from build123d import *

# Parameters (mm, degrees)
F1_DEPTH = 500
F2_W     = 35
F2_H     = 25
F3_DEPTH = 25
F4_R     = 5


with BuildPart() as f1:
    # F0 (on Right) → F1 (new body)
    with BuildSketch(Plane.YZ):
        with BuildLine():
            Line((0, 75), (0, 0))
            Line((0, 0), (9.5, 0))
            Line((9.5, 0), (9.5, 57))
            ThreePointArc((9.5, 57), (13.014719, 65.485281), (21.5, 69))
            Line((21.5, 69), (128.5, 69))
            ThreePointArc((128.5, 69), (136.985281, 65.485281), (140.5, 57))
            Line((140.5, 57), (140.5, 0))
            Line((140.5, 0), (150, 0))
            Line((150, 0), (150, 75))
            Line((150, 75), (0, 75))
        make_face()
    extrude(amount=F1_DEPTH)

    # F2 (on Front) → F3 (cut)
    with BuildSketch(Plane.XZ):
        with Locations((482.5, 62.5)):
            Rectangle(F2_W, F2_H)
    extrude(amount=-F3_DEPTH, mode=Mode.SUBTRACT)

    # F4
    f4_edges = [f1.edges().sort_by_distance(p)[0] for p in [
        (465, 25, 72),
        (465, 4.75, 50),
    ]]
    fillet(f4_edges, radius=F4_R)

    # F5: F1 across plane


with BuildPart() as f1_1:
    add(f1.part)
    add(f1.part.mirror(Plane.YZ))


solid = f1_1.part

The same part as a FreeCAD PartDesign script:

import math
import FreeCAD as App
import Part
import Sketcher
Q = App.Units.Quantity


def edges_at(feature, points):
    """Names of the edges that pass closest to the given points."""
    edges = feature.Shape.Edges
    near = lambda p: min(range(len(edges)), key=lambda i: edges[i].distToShape(Part.Vertex(*p))[0])
    return sorted({f"Edge{near(p) + 1}" for p in points})


def add_polygon(sketch, points):
    """Adds a closed chain of lines whose ends are joined by coincident constraints."""
    first, n = sketch.GeometryCount, len(points)
    for a, b in zip(points, points[1:] + points[:1]):
        sketch.addGeometry(Part.LineSegment(App.Vector(*a, 0), App.Vector(*b, 0)), False)
    for i in range(n):
        sketch.addConstraint(Sketcher.Constraint("Coincident", first + i, 2, first + (i + 1) % n, 1))

doc = App.newDocument("Part")
body = doc.addObject("PartDesign::Body", "Body")

sketch1 = body.newObject("Sketcher::SketchObject", "Sketch")
sketch1.AttachmentSupport = (doc.getObject("YZ_Plane"), [""])
sketch1.MapMode = "FlatFace"
sketch1.addGeometry([
    Part.LineSegment(App.Vector(0, 75, 0), App.Vector(0, 0, 0)),
    Part.LineSegment(App.Vector(0, 0, 0), App.Vector(10, 0, 0)),
    Part.LineSegment(App.Vector(10, 0, 0), App.Vector(10, 57, 0)),
    Part.ArcOfCircle(Part.Circle(App.Vector(22, 57, 0), App.Vector(0, 0, 1), 12), math.radians(90), math.radians(180)),
    Part.LineSegment(App.Vector(22, 69, 0), App.Vector(128, 69, 0)),
    Part.ArcOfCircle(Part.Circle(App.Vector(128, 57, 0), App.Vector(0, 0, 1), 12), math.radians(0), math.radians(90)),
    Part.LineSegment(App.Vector(140, 57, 0), App.Vector(140, 0, 0)),
    Part.LineSegment(App.Vector(140, 0, 0), App.Vector(150, 0, 0)),
    Part.LineSegment(App.Vector(150, 0, 0), App.Vector(150, 75, 0)),
    Part.LineSegment(App.Vector(150, 75, 0), App.Vector(0, 75, 0)),
], False)
sketch1.addConstraint([
    Sketcher.Constraint("Coincident", 0, 2, 1, 1),
    Sketcher.Constraint("Coincident", 1, 2, 2, 1),
    Sketcher.Constraint("Tangent", 2, 2, 3, 2),
    Sketcher.Constraint("Tangent", 3, 1, 4, 1),
    Sketcher.Constraint("Tangent", 4, 2, 5, 2),
    Sketcher.Constraint("Tangent", 5, 1, 6, 1),
    Sketcher.Constraint("Coincident", 6, 2, 7, 1),
    Sketcher.Constraint("Coincident", 7, 2, 8, 1),
    Sketcher.Constraint("Coincident", 8, 2, 9, 1),
    Sketcher.Constraint("Coincident", 9, 2, 0, 1),
    Sketcher.Constraint("Vertical", 0),
    Sketcher.Constraint("Horizontal", 1),
    Sketcher.Constraint("Vertical", 2),
    Sketcher.Constraint("Horizontal", 4),
    Sketcher.Constraint("Vertical", 6),
    Sketcher.Constraint("Horizontal", 7),
    Sketcher.Constraint("Vertical", 8),
    Sketcher.Constraint("Horizontal", 9),
    Sketcher.Constraint("Coincident", 0, 2, -1, 1),
    Sketcher.Constraint("Equal", 3, 5),
    Sketcher.Constraint("PointOnObject", 6, 2, -1),
    Sketcher.Constraint("Equal", 1, 7),
    Sketcher.Constraint("Radius", 3, Q("12.000001 mm")),
    Sketcher.Constraint("DistanceX", 4, 1, 4, 2, Q("107 mm")),
    Sketcher.Constraint("DistanceX", 9, 2, 9, 1, Q("150 mm")),
    Sketcher.Constraint("DistanceY", 0, 2, 0, 1, Q("75 mm")),
    Sketcher.Constraint("DistanceY", 2, 1, 2, 2, Q("57 mm")),
])
pad1 = body.newObject("PartDesign::Pad", "Pad")
pad1.Profile = sketch1
pad1.Length = 500

sketch2 = body.newObject("Sketcher::SketchObject", "Sketch001")
sketch2.AttachmentSupport = (doc.getObject("XZ_Plane"), [""])
sketch2.MapMode = "FlatFace"
add_polygon(sketch2, [(465, 75), (465, 50), (500, 50), (500, 75)])
sketch2.addConstraint([
    Sketcher.Constraint("Vertical", 0),
    Sketcher.Constraint("Horizontal", 1),
    Sketcher.Constraint("Vertical", 2),
    Sketcher.Constraint("Horizontal", 3),
    Sketcher.Constraint("DistanceX", 1, 1, 1, 2, Q("35 mm")),
    Sketcher.Constraint("DistanceY", 0, 2, 0, 1, Q("25 mm")),
    Sketcher.Constraint("DistanceX", -1, 1, 0, 2, Q("465 mm")),
    Sketcher.Constraint("DistanceY", -1, 1, 0, 2, Q("50 mm")),
])
pocket1 = body.newObject("PartDesign::Pocket", "Pocket")
pocket1.Profile = sketch2
pocket1.Length = 25
doc.recompute()

fillet = body.newObject("PartDesign::Fillet", "Fillet")
fillet.Base = (pocket1, edges_at(pocket1, [(465, 25, 72), (465, 4.75, 50)]))
fillet.Radius = 5
body2 = doc.addObject("PartDesign::Body", "Body001")
doc.recompute()

body2.BaseFeature = body
doc.recompute()

mirroring = doc.addObject("Part::Mirroring", "Mirroring")
mirroring.Source = body
mirroring.Base = App.Vector(0, 0, 0)
mirroring.Normal = App.Vector(1, 0, 0)
body3 = doc.addObject("PartDesign::Body", "Body002")
body3.BaseFeature = mirroring
boolean = body2.newObject("PartDesign::Boolean", "Boolean")
boolean.Type = "Fuse"
boolean.addObjects([body3])
doc.recompute()
mirroring.Visibility = False

doc.recompute()
